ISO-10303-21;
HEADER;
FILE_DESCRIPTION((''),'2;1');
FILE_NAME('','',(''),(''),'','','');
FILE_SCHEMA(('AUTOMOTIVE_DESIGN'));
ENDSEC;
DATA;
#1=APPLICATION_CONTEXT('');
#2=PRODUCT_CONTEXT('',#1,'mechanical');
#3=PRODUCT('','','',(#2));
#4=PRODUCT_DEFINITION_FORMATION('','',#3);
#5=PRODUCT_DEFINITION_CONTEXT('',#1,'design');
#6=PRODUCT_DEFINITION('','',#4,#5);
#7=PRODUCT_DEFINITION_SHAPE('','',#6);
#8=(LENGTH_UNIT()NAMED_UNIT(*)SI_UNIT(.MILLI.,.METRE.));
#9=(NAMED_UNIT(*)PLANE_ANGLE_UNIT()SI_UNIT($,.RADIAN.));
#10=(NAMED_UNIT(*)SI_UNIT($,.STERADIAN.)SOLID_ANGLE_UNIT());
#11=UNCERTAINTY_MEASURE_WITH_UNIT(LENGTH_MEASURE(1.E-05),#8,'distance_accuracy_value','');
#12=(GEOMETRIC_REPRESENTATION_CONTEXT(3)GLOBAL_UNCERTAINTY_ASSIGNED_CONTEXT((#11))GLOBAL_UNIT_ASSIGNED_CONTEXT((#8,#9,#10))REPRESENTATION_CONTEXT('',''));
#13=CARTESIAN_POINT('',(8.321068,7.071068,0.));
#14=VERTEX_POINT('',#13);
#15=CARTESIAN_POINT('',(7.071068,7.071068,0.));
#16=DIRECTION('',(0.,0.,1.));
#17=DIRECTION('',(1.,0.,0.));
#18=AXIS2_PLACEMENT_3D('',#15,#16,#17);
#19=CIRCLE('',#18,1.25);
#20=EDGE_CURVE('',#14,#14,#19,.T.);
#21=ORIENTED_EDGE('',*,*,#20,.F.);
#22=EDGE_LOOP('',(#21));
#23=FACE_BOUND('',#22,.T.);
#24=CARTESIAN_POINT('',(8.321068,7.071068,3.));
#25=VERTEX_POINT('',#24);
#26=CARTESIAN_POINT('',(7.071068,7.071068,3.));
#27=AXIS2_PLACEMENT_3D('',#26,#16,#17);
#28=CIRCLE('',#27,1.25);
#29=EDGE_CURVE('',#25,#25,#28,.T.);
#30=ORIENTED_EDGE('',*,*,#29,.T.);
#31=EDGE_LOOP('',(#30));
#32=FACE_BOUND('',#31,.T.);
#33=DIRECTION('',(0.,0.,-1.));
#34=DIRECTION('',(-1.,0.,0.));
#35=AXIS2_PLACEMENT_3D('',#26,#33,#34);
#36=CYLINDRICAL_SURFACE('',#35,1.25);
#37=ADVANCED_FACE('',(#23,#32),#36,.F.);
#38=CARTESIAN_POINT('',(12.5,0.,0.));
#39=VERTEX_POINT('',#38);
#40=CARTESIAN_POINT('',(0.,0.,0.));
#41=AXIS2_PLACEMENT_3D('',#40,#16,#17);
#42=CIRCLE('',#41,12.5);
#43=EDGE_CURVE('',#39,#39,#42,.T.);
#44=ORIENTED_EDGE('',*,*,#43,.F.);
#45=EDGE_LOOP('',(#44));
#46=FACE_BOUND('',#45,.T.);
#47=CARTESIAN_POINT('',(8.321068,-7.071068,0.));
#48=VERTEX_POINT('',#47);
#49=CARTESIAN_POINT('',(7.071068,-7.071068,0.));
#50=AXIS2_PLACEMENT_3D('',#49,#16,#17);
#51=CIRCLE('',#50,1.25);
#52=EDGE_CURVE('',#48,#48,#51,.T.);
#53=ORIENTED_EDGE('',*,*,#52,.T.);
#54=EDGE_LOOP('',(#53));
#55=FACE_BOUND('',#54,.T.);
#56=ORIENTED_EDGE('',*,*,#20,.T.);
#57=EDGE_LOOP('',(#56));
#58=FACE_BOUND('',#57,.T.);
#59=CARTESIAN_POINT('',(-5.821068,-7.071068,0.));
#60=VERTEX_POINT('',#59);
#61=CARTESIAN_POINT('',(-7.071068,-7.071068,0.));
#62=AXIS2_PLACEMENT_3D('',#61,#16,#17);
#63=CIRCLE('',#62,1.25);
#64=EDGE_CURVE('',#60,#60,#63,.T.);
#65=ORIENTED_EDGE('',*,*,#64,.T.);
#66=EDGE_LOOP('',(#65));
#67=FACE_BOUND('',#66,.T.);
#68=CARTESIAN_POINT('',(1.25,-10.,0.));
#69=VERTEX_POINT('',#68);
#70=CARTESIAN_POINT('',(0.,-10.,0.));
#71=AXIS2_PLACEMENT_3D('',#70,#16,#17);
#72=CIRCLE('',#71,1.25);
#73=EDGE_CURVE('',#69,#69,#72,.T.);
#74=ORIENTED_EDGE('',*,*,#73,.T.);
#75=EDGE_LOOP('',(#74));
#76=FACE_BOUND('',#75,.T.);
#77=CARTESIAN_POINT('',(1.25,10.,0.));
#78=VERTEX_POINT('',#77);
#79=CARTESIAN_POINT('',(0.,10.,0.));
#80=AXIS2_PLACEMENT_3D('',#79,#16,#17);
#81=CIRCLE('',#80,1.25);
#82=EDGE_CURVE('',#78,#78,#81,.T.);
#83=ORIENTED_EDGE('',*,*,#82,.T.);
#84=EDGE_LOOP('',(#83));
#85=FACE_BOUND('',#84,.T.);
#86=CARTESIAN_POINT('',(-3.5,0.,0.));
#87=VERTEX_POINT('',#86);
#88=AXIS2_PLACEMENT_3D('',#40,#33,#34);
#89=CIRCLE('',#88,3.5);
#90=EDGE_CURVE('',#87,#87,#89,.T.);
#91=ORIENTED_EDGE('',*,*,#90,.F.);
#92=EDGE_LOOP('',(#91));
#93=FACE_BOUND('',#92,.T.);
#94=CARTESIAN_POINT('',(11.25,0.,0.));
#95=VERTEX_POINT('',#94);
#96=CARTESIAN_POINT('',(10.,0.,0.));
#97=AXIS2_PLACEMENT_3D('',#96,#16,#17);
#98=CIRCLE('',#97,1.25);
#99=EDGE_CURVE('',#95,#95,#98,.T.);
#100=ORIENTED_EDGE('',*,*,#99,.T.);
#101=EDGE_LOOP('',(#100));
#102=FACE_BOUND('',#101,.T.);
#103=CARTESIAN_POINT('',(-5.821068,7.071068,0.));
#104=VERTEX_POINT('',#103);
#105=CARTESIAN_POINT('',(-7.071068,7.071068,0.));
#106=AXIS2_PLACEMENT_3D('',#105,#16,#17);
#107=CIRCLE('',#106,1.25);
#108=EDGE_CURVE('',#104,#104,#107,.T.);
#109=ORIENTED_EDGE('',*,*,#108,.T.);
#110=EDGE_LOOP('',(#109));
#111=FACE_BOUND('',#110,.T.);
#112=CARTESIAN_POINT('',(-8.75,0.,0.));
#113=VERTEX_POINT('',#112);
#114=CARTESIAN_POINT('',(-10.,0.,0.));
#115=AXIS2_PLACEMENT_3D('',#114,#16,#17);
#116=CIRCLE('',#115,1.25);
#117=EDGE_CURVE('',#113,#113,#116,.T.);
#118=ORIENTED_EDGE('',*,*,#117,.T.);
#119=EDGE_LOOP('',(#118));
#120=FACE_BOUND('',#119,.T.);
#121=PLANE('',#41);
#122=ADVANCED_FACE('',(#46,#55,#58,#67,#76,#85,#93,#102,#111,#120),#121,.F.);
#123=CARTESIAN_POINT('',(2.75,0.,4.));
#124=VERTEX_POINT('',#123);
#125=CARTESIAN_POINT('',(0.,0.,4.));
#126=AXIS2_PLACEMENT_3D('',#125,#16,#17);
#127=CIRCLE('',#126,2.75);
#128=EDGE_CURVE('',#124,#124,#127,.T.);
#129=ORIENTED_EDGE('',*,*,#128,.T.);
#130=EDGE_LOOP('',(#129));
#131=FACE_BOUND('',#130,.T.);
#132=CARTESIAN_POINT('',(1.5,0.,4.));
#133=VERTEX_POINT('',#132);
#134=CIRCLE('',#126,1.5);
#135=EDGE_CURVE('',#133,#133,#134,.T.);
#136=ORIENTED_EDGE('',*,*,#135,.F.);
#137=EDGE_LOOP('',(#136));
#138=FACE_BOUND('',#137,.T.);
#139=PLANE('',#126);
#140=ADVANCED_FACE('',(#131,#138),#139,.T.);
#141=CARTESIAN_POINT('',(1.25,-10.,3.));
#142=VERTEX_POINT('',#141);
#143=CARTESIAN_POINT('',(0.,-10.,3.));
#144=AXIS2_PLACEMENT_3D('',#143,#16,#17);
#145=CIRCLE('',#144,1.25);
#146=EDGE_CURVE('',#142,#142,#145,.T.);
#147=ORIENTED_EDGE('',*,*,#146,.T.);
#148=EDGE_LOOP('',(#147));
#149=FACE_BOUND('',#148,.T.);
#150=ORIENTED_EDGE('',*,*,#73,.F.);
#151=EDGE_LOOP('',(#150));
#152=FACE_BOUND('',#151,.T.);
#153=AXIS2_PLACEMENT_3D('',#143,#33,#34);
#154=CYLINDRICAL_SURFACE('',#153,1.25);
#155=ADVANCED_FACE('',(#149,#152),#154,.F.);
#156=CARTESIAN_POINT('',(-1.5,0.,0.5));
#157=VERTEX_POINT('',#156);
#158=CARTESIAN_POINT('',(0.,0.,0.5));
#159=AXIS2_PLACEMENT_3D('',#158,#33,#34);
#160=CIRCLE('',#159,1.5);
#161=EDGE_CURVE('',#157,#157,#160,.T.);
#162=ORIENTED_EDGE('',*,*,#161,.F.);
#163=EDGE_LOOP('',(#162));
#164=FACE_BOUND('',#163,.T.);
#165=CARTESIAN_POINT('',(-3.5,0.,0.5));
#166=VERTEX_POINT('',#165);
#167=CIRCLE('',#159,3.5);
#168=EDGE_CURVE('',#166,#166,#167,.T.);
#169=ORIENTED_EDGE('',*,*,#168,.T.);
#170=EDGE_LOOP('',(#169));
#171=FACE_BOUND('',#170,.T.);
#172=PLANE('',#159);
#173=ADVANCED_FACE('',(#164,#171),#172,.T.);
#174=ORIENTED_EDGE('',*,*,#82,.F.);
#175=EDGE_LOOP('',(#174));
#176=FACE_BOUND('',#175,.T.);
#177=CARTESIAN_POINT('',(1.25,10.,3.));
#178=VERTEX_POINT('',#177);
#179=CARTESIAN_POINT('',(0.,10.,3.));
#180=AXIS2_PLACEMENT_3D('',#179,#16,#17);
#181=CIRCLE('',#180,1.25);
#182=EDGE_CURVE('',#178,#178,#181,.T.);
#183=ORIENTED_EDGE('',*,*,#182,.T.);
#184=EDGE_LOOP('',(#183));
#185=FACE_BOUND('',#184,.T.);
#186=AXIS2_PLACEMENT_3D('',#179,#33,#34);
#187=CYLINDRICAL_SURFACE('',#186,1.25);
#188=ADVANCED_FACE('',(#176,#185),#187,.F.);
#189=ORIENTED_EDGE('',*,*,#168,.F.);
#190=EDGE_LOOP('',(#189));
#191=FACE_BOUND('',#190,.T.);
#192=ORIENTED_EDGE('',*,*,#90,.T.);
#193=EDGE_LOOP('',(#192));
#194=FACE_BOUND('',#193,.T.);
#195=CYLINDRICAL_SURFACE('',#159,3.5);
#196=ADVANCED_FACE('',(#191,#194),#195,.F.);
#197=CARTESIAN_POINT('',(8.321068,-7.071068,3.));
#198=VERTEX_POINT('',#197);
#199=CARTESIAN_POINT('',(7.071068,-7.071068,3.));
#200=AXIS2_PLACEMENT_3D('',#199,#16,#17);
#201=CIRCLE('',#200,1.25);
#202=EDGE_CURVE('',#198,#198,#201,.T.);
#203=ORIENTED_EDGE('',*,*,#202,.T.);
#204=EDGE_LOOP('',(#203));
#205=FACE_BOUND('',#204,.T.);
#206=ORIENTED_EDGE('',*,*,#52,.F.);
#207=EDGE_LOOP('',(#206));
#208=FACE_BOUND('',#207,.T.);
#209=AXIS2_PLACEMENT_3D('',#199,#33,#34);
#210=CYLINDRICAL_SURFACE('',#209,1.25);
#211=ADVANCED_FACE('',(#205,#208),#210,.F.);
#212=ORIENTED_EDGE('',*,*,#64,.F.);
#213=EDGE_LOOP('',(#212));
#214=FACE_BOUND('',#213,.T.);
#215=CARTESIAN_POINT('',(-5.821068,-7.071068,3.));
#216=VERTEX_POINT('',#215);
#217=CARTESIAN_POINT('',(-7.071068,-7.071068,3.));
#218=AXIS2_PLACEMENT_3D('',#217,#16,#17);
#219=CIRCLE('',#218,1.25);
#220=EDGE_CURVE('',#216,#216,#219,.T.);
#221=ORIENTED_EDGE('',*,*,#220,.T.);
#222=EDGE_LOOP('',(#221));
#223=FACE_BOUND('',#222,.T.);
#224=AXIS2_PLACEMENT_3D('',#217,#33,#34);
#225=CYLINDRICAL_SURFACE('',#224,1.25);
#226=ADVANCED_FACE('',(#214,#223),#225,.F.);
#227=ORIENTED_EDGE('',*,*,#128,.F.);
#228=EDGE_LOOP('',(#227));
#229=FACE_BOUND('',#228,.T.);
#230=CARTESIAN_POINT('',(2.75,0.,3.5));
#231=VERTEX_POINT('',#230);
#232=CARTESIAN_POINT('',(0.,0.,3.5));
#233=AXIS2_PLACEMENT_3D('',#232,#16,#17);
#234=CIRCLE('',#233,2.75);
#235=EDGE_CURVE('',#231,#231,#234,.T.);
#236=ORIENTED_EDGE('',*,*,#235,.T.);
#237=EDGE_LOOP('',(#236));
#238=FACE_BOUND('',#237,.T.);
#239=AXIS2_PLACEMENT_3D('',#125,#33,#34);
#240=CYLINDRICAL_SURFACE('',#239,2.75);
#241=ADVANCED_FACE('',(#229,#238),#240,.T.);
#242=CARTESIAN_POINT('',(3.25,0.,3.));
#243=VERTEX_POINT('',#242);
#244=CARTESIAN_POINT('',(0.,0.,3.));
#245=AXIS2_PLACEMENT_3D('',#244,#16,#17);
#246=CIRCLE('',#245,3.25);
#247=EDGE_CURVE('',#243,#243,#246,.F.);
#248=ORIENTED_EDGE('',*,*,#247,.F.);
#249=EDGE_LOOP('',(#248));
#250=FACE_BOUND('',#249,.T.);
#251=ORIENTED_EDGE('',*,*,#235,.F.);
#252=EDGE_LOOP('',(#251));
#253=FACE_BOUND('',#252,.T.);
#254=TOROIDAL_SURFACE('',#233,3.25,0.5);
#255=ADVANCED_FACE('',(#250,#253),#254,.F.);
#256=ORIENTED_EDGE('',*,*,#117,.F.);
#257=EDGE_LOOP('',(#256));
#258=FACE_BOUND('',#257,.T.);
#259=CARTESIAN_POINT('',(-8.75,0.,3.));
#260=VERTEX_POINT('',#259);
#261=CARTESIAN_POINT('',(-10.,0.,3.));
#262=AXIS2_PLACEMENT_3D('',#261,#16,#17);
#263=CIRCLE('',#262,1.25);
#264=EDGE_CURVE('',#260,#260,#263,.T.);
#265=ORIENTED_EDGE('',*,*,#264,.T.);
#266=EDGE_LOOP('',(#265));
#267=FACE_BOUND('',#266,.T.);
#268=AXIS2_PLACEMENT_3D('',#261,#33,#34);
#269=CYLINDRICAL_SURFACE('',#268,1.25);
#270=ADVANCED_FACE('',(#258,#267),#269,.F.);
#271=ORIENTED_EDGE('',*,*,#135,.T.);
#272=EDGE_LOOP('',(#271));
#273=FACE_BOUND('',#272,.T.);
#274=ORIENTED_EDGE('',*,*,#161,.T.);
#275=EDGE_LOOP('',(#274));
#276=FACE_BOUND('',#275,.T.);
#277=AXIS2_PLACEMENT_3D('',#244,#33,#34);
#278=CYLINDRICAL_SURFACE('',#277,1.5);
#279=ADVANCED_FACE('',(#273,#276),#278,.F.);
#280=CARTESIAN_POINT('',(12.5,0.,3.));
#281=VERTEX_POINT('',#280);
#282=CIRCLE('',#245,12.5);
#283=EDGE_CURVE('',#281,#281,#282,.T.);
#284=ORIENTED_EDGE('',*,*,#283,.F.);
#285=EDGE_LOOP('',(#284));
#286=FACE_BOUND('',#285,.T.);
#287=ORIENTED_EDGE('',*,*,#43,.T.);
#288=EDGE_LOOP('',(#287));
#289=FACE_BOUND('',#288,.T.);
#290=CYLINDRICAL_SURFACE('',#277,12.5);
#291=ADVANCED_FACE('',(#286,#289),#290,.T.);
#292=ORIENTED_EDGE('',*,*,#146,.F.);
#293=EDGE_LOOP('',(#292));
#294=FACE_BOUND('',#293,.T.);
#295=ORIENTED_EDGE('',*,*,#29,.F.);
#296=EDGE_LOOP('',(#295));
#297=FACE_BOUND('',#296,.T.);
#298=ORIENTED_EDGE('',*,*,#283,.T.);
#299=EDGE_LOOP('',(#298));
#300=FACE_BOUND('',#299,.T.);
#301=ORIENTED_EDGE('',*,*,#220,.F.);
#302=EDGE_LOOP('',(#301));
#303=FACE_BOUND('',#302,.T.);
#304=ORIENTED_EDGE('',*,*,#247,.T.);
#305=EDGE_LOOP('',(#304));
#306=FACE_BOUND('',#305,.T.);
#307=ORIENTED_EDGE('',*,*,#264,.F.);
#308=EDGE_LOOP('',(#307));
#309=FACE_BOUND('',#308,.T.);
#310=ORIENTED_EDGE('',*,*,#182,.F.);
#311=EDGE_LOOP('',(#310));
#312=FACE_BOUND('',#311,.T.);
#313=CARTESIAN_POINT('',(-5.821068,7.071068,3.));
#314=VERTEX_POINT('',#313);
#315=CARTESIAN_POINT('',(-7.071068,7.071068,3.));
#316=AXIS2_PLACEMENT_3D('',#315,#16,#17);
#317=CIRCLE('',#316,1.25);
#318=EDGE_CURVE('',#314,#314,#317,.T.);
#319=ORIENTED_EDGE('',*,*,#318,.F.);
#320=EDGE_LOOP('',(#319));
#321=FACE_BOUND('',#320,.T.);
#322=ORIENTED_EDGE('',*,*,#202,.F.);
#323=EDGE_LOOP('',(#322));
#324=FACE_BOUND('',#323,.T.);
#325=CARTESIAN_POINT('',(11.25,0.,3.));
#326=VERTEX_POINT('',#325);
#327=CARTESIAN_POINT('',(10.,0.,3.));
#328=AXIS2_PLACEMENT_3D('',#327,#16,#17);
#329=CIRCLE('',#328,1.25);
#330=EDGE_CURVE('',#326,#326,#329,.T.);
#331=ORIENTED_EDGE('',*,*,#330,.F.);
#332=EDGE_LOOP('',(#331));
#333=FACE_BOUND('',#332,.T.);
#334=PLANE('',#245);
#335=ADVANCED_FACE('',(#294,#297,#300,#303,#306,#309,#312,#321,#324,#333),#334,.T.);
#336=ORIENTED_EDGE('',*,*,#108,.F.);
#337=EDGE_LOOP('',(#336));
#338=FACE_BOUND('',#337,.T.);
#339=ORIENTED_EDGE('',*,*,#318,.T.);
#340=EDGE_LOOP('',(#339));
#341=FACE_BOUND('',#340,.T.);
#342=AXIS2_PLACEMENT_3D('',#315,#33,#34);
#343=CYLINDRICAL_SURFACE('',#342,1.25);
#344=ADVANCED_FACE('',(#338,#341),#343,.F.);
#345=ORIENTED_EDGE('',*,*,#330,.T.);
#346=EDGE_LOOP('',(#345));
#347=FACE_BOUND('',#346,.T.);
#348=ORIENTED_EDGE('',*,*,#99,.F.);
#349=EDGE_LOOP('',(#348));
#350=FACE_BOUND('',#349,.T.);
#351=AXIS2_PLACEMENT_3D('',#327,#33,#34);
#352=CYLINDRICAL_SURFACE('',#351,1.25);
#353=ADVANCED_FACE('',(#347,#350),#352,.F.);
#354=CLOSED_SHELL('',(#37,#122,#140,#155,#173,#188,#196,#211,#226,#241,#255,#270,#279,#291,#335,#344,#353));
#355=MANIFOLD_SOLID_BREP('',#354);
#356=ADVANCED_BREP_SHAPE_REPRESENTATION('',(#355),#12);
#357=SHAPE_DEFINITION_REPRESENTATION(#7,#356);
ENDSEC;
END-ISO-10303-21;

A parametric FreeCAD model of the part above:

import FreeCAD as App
import Part
import Sketcher
from FreeCAD import Vector
Q = App.Units.Quantity


def edges_at(feature, points):
    """Names of the edges that pass closest to the given points."""
    edges = feature.Shape.Edges
    near = lambda p: min(range(len(edges)), key=lambda i: edges[i].distToShape(Part.Vertex(*p))[0])
    return sorted({f"Edge{near(p) + 1}" for p in points})

doc = App.newDocument("Part")
body = doc.addObject("PartDesign::Body", "Body")

# Sketch on XY plane
sketch1 = body.newObject("Sketcher::SketchObject", "Sketch")
sketch1.AttachmentSupport = (doc.getObject("XY_Plane"), [""])
sketch1.MapMode = "FlatFace"
sketch1.addGeometry(Part.Circle(Vector(0, 0, 0), Vector(0, 0, 1), 12.5), False)
sketch1.addGeometry(Part.Circle(Vector(-7.1, -7.1, 0), Vector(0, 0, 1), 1.2), False)
sketch1.addGeometry(Part.Circle(Vector(0, -10, 0), Vector(0, 0, 1), 1.2), False)
sketch1.addGeometry(Part.Circle(Vector(7.1, -7.1, 0), Vector(0, 0, 1), 1.2), False)
sketch1.addGeometry(Part.Circle(Vector(-10, 0, 0), Vector(0, 0, 1), 1.2), False)
sketch1.addGeometry(Part.Circle(Vector(-7.1, 7.1, 0), Vector(0, 0, 1), 1.2), False)
sketch1.addGeometry(Part.Circle(Vector(0, 0, 0), Vector(0, 0, 1), 1.5), False)
sketch1.addGeometry(Part.Circle(Vector(10, 0, 0), Vector(0, 0, 1), 1.2), False)
sketch1.addGeometry(Part.Circle(Vector(0, 10, 0), Vector(0, 0, 1), 1.2), False)
sketch1.addGeometry(Part.Circle(Vector(7.1, 7.1, 0), Vector(0, 0, 1), 1.2), False)
sketch1.addConstraint(Sketcher.Constraint("Coincident", 0, 3, -1, 1))
sketch1.addConstraint(Sketcher.Constraint("Coincident", 6, 3, -1, 1))
sketch1.addConstraint(Sketcher.Constraint("Equal", 1, 2))
sketch1.addConstraint(Sketcher.Constraint("Equal", 2, 3))
sketch1.addConstraint(Sketcher.Constraint("Equal", 3, 4))
sketch1.addConstraint(Sketcher.Constraint("Equal", 4, 5))
sketch1.addConstraint(Sketcher.Constraint("Equal", 5, 7))
sketch1.addConstraint(Sketcher.Constraint("Equal", 7, 8))
sketch1.addConstraint(Sketcher.Constraint("Equal", 8, 9))
sketch1.addConstraint(Sketcher.Constraint("Symmetric", 3, 3, 5, 3, -1, 1))
sketch1.addConstraint(Sketcher.Constraint("Symmetric", 4, 3, 7, 3, -1, 1))
sketch1.addConstraint(Sketcher.Constraint("Symmetric", 2, 3, 8, 3, -1, 1))
sketch1.addConstraint(Sketcher.Constraint("Symmetric", 1, 3, 9, 3, -1, 1))
sketch1.addConstraint(Sketcher.Constraint("Symmetric", 1, 3, 3, 3, -2))
sketch1.addConstraint(Sketcher.Constraint("PointOnObject", 2, 3, -2))
sketch1.addConstraint(Sketcher.Constraint("PointOnObject", 4, 3, -1))
sketch1.addConstraint(Sketcher.Constraint("Diameter", 0, Q("25 mm")))
sketch1.addConstraint(Sketcher.Constraint("Diameter", 6, Q("3 mm")))
sketch1.addConstraint(Sketcher.Constraint("Diameter", 1, Q("2.5 mm")))
sketch1.addConstraint(Sketcher.Constraint("DistanceY", 2, 3, -1, 1, Q("10 mm")))
sketch1.addConstraint(Sketcher.Constraint("DistanceX", 4, 3, -1, 1, Q("10 mm")))
sketch1.addConstraint(Sketcher.Constraint("DistanceX", 1, 3, -1, 1, Q("7.071068 mm")))
sketch1.addConstraint(Sketcher.Constraint("DistanceY", 1, 3, -1, 1, Q("7.071068 mm")))
pad1 = body.newObject("PartDesign::Pad", "Pad")
pad1.Profile = sketch1
pad1.Length = 3

# Sketch on XY plane
sketch2 = body.newObject("Sketcher::SketchObject", "Sketch001")
sketch2.AttachmentSupport = (doc.getObject("XY_Plane"), [""])
sketch2.MapMode = "FlatFace"
sketch2.AttachmentOffset = App.Placement(Vector(0, 0, 3), App.Rotation())
sketch2.addGeometry(Part.Circle(Vector(0, 0, 0), Vector(0, 0, 1), 2.8), False)
sketch2.addGeometry(Part.Circle(Vector(0, 0, 0), Vector(0, 0, 1), 1.5), False)
sketch2.addConstraint(Sketcher.Constraint("Coincident", 0, 3, -1, 1))
sketch2.addConstraint(Sketcher.Constraint("Coincident", 1, 3, -1, 1))
sketch2.addConstraint(Sketcher.Constraint("Diameter", 1, Q("3 mm")))
sketch2.addConstraint(Sketcher.Constraint("Diameter", 0, Q("5.5 mm")))
pad2 = body.newObject("PartDesign::Pad", "Pad001")
pad2.Profile = sketch2
pad2.Length = 1
doc.recompute()

fillet = body.newObject("PartDesign::Fillet", "Fillet")
fillet.Base = (pad2, edges_at(pad2, [(-2.75, 0, 3)]))
fillet.Radius = 0.5

# Sketch on XY plane
sketch3 = body.newObject("Sketcher::SketchObject", "Sketch002")
sketch3.AttachmentSupport = (doc.getObject("XY_Plane"), [""])
sketch3.MapMode = "FlatFace"
sketch3.addGeometry(Part.Circle(Vector(0, 0, 0), Vector(0, 0, 1), 3.5), False)
sketch3.addGeometry(Part.Circle(Vector(0, 0, 0), Vector(0, 0, 1), 1.5), False)
sketch3.addConstraint(Sketcher.Constraint("Coincident", 0, 3, -1, 1))
sketch3.addConstraint(Sketcher.Constraint("Coincident", 1, 3, -1, 1))
sketch3.addConstraint(Sketcher.Constraint("Diameter", 0, Q("7 mm")))
sketch3.addConstraint(Sketcher.Constraint("Diameter", 1, Q("3 mm")))
pocket1 = body.newObject("PartDesign::Pocket", "Pocket")
pocket1.Profile = sketch3
pocket1.Length = 0.5
pocket1.Reversed = True

doc.recompute()
